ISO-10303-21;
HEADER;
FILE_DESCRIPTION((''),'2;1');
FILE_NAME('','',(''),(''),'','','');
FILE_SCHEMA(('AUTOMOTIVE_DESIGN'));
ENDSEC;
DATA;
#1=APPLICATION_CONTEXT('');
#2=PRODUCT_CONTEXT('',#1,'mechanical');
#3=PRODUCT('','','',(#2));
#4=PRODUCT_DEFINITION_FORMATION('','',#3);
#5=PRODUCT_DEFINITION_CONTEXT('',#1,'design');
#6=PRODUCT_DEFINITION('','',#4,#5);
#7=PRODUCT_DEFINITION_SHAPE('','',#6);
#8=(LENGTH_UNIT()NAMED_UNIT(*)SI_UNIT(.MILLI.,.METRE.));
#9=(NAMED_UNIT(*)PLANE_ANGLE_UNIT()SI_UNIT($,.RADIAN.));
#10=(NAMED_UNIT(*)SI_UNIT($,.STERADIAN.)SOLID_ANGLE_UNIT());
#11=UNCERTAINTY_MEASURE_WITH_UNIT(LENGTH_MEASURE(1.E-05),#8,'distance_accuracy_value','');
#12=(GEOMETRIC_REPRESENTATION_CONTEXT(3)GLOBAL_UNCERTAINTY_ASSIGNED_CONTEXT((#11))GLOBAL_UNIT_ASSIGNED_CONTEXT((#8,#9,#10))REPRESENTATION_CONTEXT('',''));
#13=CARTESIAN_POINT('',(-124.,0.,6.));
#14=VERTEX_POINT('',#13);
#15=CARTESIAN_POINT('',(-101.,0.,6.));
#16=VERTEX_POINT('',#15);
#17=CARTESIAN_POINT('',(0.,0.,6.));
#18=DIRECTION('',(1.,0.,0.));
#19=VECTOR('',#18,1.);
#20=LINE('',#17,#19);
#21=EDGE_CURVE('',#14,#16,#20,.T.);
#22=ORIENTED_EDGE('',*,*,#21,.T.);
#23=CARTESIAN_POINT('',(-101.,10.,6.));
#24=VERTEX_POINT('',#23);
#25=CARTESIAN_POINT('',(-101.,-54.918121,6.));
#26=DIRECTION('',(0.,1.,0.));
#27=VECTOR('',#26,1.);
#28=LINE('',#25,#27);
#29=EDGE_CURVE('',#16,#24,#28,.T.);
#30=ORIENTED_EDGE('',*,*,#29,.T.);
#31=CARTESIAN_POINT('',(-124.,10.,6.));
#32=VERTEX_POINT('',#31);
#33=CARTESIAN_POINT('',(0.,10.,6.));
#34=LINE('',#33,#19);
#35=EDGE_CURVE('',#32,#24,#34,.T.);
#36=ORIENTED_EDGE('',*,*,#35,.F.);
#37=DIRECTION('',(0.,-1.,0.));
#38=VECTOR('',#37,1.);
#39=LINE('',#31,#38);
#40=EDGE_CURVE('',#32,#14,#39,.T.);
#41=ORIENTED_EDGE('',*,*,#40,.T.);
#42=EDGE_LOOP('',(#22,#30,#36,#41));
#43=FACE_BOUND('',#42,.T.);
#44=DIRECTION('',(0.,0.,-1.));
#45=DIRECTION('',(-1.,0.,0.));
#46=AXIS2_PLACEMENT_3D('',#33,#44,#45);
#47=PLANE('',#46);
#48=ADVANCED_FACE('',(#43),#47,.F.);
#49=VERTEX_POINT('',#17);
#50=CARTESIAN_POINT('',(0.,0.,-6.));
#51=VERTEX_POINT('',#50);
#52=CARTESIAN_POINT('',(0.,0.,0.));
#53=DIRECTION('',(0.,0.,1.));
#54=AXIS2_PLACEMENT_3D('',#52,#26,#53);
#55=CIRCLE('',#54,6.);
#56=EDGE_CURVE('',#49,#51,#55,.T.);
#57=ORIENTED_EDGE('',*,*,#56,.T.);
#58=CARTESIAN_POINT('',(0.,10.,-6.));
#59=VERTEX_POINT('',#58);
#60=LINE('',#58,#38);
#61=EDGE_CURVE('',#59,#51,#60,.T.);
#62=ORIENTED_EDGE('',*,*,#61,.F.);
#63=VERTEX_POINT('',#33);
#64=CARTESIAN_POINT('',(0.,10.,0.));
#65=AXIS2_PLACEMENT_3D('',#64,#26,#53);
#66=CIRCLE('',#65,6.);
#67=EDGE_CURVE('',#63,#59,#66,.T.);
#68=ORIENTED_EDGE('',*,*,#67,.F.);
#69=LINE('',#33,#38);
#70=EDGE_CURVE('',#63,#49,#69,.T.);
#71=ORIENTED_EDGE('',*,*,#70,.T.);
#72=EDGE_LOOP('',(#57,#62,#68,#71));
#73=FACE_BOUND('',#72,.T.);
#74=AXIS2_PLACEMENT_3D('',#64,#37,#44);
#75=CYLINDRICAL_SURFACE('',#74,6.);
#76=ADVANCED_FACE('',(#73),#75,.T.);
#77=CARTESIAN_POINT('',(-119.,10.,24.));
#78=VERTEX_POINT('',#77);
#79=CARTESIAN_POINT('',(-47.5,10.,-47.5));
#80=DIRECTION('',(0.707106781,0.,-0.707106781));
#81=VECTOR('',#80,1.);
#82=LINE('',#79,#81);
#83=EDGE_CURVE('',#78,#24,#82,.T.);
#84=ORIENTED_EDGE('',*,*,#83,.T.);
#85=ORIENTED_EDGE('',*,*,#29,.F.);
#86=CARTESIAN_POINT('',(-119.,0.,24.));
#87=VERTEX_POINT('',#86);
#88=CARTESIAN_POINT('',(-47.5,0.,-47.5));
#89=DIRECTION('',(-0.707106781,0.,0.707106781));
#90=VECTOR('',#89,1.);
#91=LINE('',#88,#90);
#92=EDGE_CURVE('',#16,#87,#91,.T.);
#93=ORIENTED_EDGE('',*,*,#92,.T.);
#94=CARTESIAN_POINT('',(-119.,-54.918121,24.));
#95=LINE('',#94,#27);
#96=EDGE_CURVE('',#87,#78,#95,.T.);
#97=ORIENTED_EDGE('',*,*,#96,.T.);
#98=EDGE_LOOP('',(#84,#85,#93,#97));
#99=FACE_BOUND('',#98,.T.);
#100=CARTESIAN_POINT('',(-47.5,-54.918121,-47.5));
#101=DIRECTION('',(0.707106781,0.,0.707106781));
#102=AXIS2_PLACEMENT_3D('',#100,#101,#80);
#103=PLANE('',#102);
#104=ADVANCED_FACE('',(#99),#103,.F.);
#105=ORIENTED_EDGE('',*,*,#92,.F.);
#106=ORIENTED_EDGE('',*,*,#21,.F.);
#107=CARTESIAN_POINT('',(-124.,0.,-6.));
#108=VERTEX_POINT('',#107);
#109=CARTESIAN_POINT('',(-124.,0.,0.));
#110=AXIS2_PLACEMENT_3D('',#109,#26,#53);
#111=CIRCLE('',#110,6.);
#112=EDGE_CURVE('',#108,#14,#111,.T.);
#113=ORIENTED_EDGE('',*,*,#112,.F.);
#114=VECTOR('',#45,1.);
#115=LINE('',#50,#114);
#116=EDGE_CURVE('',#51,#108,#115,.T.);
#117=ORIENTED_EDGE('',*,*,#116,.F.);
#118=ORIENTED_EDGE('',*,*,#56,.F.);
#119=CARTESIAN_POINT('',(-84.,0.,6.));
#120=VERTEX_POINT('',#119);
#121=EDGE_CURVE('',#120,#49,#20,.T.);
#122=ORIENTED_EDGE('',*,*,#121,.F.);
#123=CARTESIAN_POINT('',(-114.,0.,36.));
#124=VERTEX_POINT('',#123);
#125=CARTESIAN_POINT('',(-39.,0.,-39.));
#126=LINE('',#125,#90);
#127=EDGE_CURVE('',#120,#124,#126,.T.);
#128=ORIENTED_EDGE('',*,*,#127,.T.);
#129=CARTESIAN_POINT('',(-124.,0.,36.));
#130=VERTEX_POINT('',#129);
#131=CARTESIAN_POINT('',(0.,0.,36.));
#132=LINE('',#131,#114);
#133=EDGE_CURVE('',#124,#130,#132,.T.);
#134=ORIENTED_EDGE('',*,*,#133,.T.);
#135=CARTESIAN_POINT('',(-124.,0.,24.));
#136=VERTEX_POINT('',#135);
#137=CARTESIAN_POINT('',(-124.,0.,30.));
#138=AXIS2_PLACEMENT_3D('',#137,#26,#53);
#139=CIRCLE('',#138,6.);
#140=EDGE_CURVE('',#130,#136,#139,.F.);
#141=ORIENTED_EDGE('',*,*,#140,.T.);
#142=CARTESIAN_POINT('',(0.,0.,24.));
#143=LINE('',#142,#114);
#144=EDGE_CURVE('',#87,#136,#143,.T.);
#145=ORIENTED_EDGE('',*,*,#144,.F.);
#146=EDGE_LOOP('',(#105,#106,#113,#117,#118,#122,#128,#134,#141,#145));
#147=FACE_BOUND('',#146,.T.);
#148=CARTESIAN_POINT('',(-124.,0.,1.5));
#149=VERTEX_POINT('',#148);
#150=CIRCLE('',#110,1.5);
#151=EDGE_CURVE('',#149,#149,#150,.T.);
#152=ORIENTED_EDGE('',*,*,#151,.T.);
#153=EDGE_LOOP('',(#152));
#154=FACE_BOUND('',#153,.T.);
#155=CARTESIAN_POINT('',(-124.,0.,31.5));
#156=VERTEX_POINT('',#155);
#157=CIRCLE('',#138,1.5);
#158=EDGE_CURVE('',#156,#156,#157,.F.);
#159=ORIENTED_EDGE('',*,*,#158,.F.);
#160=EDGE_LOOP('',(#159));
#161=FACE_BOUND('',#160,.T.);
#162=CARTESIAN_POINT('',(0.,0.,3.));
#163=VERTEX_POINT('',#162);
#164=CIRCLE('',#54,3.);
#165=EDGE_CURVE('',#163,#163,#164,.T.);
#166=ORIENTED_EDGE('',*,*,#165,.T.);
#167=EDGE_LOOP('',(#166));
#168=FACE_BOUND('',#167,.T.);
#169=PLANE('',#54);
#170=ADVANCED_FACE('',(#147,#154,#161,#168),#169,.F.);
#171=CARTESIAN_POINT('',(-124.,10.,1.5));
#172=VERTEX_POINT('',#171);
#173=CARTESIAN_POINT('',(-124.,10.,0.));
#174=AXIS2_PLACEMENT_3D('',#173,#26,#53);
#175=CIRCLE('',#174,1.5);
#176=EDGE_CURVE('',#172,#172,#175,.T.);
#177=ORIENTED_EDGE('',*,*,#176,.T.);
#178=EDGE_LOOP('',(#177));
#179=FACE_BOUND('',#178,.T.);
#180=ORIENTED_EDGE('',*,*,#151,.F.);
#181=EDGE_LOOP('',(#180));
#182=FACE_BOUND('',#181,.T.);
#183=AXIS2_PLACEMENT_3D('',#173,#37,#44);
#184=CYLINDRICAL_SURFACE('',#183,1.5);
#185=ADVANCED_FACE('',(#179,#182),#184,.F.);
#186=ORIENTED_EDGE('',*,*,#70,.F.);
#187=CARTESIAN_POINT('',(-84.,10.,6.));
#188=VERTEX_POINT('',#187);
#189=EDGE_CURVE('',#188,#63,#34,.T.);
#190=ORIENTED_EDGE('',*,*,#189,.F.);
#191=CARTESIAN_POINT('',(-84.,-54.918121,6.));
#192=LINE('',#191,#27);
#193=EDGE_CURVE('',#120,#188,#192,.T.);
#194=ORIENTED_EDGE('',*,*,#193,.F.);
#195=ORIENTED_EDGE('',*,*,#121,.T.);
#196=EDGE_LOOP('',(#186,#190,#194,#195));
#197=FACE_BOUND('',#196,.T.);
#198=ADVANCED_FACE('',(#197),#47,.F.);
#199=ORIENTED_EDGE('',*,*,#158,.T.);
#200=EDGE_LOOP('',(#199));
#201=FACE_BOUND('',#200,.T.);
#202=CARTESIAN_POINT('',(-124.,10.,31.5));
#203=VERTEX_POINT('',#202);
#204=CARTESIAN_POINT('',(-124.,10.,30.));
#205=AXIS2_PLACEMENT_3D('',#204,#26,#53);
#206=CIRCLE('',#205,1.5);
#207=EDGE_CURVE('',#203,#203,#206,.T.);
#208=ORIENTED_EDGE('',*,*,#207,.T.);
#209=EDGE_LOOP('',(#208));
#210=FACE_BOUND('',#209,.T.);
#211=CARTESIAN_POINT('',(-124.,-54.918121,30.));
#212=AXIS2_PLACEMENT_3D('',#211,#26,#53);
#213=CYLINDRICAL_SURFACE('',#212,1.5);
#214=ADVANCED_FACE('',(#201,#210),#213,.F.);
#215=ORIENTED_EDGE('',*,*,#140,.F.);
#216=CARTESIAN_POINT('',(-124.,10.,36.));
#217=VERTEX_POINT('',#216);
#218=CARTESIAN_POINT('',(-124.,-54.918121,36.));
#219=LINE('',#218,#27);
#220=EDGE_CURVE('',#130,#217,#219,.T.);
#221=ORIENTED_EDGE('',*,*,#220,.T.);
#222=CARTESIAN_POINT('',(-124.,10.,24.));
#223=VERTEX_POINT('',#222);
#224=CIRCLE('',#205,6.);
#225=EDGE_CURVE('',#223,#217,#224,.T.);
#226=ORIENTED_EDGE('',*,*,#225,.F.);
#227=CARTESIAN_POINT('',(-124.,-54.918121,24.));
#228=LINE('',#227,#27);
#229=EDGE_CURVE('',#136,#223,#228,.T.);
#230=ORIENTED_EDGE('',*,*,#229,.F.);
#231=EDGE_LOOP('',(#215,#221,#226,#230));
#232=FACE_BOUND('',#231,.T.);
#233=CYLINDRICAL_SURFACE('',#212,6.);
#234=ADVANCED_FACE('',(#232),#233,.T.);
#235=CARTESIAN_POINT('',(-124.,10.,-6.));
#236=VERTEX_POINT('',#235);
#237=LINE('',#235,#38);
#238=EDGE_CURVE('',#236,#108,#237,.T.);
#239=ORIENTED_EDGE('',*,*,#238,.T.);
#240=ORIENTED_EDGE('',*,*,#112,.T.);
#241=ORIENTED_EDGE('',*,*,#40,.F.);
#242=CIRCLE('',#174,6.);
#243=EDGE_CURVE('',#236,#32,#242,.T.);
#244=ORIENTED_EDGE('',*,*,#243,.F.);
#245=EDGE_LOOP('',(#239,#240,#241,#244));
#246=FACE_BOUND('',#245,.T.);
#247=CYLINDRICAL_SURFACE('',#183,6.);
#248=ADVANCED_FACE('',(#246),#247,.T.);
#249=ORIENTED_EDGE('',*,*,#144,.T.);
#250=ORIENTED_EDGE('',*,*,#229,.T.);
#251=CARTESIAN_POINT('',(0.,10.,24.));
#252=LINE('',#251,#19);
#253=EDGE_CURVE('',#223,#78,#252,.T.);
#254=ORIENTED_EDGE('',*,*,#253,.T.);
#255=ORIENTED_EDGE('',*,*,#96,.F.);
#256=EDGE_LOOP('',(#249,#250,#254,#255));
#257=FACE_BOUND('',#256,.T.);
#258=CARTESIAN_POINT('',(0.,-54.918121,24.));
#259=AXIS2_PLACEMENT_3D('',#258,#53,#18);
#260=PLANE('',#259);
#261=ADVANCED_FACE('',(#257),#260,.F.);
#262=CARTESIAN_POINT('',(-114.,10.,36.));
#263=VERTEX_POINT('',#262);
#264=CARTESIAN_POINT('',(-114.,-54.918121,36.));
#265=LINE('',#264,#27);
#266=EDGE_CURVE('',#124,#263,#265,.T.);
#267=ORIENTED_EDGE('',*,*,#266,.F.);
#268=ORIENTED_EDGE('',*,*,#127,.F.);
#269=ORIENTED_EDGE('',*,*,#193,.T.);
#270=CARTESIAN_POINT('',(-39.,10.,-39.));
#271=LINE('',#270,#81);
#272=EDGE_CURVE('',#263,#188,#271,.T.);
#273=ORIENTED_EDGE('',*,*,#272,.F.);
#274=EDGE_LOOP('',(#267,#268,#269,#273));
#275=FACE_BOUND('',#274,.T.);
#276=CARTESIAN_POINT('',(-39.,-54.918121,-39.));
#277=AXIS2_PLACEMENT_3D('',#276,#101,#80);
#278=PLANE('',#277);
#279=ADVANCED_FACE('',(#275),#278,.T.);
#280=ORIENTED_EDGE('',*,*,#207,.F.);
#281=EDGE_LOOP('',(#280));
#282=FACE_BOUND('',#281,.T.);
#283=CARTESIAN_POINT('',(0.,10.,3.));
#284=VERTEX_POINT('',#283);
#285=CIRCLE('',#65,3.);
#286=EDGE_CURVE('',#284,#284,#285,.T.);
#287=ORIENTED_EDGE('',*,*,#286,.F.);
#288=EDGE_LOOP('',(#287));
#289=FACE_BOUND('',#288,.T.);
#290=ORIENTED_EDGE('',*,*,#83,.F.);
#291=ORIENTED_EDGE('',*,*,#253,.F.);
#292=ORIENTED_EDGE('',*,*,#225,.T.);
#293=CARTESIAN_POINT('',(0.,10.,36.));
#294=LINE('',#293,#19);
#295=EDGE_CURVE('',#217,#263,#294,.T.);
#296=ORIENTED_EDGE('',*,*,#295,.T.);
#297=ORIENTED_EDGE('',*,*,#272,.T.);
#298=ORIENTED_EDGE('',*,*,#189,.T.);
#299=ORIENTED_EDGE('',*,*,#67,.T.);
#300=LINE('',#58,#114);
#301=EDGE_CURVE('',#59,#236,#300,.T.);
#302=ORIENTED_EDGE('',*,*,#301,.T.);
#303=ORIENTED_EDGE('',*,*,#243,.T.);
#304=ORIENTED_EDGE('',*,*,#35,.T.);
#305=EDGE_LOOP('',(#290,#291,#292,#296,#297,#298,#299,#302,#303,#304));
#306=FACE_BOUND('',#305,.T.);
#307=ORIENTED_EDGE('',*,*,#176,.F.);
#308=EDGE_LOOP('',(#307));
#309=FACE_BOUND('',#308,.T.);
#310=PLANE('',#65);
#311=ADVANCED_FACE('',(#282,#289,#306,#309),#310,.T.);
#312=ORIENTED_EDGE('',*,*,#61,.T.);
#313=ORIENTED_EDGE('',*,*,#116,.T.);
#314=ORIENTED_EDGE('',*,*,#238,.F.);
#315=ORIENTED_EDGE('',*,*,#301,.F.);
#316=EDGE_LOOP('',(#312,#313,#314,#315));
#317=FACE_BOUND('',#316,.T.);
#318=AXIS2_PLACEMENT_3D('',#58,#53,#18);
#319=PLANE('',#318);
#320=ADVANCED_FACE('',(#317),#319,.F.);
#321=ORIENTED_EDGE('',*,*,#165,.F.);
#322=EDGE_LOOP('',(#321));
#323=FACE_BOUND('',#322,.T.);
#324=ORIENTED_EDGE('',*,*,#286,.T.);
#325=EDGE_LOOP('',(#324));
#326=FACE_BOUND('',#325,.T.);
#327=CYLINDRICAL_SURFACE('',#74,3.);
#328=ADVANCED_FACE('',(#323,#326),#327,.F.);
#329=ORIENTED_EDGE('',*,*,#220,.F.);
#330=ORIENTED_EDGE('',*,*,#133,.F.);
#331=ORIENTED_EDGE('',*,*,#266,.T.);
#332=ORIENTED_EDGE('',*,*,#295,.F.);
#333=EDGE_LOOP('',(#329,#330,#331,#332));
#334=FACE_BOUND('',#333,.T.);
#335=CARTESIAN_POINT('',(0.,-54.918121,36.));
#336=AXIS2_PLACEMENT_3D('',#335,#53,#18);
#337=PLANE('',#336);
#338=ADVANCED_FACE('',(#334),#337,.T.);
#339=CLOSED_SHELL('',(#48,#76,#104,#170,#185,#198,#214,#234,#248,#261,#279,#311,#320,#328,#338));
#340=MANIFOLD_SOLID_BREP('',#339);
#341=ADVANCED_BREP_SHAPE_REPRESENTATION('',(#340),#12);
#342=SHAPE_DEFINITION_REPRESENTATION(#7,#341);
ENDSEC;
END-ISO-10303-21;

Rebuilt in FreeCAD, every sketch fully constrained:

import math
import FreeCAD as App
import Part
import Sketcher
from FreeCAD import Vector

doc = App.newDocument("Part")
body = doc.addObject("PartDesign::Body", "Body")

# Sketch on XZ plane
sketch1 = body.newObject("Sketcher::SketchObject", "Sketch")
sketch1.AttachmentSupport = (doc.getObject("XZ_Plane"), [""])
sketch1.MapMode = "FlatFace"
sketch1.addGeometry(Part.LineSegment(Vector(-124, 6, 0), Vector(0, 6, 0)), False)
sketch1.addGeometry(Part.ArcOfCircle(Part.Circle(Vector(0, 0, 0), Vector(0, 0, 1), 6), math.radians(-90), math.radians(90)), False)
sketch1.addGeometry(Part.LineSegment(Vector(0, -6, 0), Vector(-124, -6, 0)), False)
sketch1.addGeometry(Part.ArcOfCircle(Part.Circle(Vector(-124, 0, 0), Vector(0, 0, 1), 6), math.radians(90), math.radians(270)), False)
sketch1.addGeometry(Part.Circle(Vector(0, 0, 0), Vector(0, 0, 1), 3), False)
sketch1.addGeometry(Part.Circle(Vector(-124, 0, 0), Vector(0, 0, 1), 1.5), False)
sketch1.addConstraint(Sketcher.Constraint("Tangent", 0, 2, 1, 2))
sketch1.addConstraint(Sketcher.Constraint("Tangent", 1, 1, 2, 1))
sketch1.addConstraint(Sketcher.Constraint("Tangent", 2, 2, 3, 2))
sketch1.addConstraint(Sketcher.Constraint("Tangent", 3, 1, 0, 1))
sketch1.addConstraint(Sketcher.Constraint("Horizontal", 0))
sketch1.addConstraint(Sketcher.Constraint("Horizontal", 2))
sketch1.addConstraint(Sketcher.Constraint("Coincident", 1, 3, -1, 1))
sketch1.addConstraint(Sketcher.Constraint("Coincident", 4, 3, -1, 1))
sketch1.addConstraint(Sketcher.Constraint("Coincident", 5, 3, 3, 3))
sketch1.addConstraint(Sketcher.Constraint("Diameter", 4, 6.0))
sketch1.addConstraint(Sketcher.Constraint("Diameter", 5, 3.0))
sketch1.addConstraint(Sketcher.Constraint("Radius", 1, 6.0))
sketch1.addConstraint(Sketcher.Constraint("DistanceX", 0, 1, 0, 2, 124.0))
pad1 = body.newObject("PartDesign::Pad", "Pad")
pad1.Profile = sketch1
pad1.Length = 10
pad1.Reversed = True

# Sketch on XZ plane
sketch2 = body.newObject("Sketcher::SketchObject", "Sketch001")
sketch2.AttachmentSupport = (doc.getObject("XZ_Plane"), [""])
sketch2.MapMode = "FlatFace"
sketch2.AttachmentOffset = App.Placement(Vector(0, 0, -10), App.Rotation())
sketch2.addGeometry(Part.LineSegment(Vector(-119, 24, 0), Vector(-124, 24, 0)), False)
sketch2.addGeometry(Part.ArcOfCircle(Part.Circle(Vector(-124, 30, 0), Vector(0, 0, 1), 6), math.radians(90), math.radians(270)), False)
sketch2.addGeometry(Part.LineSegment(Vector(-124, 36, 0), Vector(-114, 36, 0)), False)
sketch2.addGeometry(Part.LineSegment(Vector(-114, 36, 0), Vector(-84, 6, 0)), False)
sketch2.addGeometry(Part.LineSegment(Vector(-84, 6, 0), Vector(-101, 6, 0)), False)
sketch2.addGeometry(Part.LineSegment(Vector(-101, 6, 0), Vector(-119, 24, 0)), False)
sketch2.addGeometry(Part.Circle(Vector(-124, 30, 0), Vector(0, 0, 1), 1.5), False)
sketch2.addConstraint(Sketcher.Constraint("Tangent", 0, 2, 1, 2))
sketch2.addConstraint(Sketcher.Constraint("Tangent", 1, 1, 2, 1))
sketch2.addConstraint(Sketcher.Constraint("Coincident", 2, 2, 3, 1))
sketch2.addConstraint(Sketcher.Constraint("Coincident", 3, 2, 4, 1))
sketch2.addConstraint(Sketcher.Constraint("Coincident", 4, 2, 5, 1))
sketch2.addConstraint(Sketcher.Constraint("Coincident", 5, 2, 0, 1))
sketch2.addConstraint(Sketcher.Constraint("Horizontal", 0))
sketch2.addConstraint(Sketcher.Constraint("Horizontal", 2))
sketch2.addConstraint(Sketcher.Constraint("Horizontal", 4))
sketch2.addConstraint(Sketcher.Constraint("Coincident", 6, 3, 1, 3))
sketch2.addConstraint(Sketcher.Constraint("Parallel", 3, 5))
sketch2.addConstraint(Sketcher.Constraint("Diameter", 6, 3.0))
sketch2.addConstraint(Sketcher.Constraint("Radius", 1, 6.0))
sketch2.addConstraint(Sketcher.Constraint("DistanceX", 0, 2, 0, 1, 5.0))
sketch2.addConstraint(Sketcher.Constraint("DistanceX", 2, 1, 2, 2, 10.0))
sketch2.addConstraint(Sketcher.Constraint("DistanceX", 4, 2, 4, 1, 17.0))
sketch2.addConstraint(Sketcher.Constraint("DistanceX", 1, 3, -1, 1, 124.0))
sketch2.addConstraint(Sketcher.Constraint("DistanceY", -1, 1, 1, 3, 30.0))
sketch2.addConstraint(Sketcher.Constraint("DistanceX", 3, 2, -1, 1, 84.0))
pad2 = body.newObject("PartDesign::Pad", "Pad001")
pad2.Profile = sketch2
pad2.Length = 10

doc.recompute()
